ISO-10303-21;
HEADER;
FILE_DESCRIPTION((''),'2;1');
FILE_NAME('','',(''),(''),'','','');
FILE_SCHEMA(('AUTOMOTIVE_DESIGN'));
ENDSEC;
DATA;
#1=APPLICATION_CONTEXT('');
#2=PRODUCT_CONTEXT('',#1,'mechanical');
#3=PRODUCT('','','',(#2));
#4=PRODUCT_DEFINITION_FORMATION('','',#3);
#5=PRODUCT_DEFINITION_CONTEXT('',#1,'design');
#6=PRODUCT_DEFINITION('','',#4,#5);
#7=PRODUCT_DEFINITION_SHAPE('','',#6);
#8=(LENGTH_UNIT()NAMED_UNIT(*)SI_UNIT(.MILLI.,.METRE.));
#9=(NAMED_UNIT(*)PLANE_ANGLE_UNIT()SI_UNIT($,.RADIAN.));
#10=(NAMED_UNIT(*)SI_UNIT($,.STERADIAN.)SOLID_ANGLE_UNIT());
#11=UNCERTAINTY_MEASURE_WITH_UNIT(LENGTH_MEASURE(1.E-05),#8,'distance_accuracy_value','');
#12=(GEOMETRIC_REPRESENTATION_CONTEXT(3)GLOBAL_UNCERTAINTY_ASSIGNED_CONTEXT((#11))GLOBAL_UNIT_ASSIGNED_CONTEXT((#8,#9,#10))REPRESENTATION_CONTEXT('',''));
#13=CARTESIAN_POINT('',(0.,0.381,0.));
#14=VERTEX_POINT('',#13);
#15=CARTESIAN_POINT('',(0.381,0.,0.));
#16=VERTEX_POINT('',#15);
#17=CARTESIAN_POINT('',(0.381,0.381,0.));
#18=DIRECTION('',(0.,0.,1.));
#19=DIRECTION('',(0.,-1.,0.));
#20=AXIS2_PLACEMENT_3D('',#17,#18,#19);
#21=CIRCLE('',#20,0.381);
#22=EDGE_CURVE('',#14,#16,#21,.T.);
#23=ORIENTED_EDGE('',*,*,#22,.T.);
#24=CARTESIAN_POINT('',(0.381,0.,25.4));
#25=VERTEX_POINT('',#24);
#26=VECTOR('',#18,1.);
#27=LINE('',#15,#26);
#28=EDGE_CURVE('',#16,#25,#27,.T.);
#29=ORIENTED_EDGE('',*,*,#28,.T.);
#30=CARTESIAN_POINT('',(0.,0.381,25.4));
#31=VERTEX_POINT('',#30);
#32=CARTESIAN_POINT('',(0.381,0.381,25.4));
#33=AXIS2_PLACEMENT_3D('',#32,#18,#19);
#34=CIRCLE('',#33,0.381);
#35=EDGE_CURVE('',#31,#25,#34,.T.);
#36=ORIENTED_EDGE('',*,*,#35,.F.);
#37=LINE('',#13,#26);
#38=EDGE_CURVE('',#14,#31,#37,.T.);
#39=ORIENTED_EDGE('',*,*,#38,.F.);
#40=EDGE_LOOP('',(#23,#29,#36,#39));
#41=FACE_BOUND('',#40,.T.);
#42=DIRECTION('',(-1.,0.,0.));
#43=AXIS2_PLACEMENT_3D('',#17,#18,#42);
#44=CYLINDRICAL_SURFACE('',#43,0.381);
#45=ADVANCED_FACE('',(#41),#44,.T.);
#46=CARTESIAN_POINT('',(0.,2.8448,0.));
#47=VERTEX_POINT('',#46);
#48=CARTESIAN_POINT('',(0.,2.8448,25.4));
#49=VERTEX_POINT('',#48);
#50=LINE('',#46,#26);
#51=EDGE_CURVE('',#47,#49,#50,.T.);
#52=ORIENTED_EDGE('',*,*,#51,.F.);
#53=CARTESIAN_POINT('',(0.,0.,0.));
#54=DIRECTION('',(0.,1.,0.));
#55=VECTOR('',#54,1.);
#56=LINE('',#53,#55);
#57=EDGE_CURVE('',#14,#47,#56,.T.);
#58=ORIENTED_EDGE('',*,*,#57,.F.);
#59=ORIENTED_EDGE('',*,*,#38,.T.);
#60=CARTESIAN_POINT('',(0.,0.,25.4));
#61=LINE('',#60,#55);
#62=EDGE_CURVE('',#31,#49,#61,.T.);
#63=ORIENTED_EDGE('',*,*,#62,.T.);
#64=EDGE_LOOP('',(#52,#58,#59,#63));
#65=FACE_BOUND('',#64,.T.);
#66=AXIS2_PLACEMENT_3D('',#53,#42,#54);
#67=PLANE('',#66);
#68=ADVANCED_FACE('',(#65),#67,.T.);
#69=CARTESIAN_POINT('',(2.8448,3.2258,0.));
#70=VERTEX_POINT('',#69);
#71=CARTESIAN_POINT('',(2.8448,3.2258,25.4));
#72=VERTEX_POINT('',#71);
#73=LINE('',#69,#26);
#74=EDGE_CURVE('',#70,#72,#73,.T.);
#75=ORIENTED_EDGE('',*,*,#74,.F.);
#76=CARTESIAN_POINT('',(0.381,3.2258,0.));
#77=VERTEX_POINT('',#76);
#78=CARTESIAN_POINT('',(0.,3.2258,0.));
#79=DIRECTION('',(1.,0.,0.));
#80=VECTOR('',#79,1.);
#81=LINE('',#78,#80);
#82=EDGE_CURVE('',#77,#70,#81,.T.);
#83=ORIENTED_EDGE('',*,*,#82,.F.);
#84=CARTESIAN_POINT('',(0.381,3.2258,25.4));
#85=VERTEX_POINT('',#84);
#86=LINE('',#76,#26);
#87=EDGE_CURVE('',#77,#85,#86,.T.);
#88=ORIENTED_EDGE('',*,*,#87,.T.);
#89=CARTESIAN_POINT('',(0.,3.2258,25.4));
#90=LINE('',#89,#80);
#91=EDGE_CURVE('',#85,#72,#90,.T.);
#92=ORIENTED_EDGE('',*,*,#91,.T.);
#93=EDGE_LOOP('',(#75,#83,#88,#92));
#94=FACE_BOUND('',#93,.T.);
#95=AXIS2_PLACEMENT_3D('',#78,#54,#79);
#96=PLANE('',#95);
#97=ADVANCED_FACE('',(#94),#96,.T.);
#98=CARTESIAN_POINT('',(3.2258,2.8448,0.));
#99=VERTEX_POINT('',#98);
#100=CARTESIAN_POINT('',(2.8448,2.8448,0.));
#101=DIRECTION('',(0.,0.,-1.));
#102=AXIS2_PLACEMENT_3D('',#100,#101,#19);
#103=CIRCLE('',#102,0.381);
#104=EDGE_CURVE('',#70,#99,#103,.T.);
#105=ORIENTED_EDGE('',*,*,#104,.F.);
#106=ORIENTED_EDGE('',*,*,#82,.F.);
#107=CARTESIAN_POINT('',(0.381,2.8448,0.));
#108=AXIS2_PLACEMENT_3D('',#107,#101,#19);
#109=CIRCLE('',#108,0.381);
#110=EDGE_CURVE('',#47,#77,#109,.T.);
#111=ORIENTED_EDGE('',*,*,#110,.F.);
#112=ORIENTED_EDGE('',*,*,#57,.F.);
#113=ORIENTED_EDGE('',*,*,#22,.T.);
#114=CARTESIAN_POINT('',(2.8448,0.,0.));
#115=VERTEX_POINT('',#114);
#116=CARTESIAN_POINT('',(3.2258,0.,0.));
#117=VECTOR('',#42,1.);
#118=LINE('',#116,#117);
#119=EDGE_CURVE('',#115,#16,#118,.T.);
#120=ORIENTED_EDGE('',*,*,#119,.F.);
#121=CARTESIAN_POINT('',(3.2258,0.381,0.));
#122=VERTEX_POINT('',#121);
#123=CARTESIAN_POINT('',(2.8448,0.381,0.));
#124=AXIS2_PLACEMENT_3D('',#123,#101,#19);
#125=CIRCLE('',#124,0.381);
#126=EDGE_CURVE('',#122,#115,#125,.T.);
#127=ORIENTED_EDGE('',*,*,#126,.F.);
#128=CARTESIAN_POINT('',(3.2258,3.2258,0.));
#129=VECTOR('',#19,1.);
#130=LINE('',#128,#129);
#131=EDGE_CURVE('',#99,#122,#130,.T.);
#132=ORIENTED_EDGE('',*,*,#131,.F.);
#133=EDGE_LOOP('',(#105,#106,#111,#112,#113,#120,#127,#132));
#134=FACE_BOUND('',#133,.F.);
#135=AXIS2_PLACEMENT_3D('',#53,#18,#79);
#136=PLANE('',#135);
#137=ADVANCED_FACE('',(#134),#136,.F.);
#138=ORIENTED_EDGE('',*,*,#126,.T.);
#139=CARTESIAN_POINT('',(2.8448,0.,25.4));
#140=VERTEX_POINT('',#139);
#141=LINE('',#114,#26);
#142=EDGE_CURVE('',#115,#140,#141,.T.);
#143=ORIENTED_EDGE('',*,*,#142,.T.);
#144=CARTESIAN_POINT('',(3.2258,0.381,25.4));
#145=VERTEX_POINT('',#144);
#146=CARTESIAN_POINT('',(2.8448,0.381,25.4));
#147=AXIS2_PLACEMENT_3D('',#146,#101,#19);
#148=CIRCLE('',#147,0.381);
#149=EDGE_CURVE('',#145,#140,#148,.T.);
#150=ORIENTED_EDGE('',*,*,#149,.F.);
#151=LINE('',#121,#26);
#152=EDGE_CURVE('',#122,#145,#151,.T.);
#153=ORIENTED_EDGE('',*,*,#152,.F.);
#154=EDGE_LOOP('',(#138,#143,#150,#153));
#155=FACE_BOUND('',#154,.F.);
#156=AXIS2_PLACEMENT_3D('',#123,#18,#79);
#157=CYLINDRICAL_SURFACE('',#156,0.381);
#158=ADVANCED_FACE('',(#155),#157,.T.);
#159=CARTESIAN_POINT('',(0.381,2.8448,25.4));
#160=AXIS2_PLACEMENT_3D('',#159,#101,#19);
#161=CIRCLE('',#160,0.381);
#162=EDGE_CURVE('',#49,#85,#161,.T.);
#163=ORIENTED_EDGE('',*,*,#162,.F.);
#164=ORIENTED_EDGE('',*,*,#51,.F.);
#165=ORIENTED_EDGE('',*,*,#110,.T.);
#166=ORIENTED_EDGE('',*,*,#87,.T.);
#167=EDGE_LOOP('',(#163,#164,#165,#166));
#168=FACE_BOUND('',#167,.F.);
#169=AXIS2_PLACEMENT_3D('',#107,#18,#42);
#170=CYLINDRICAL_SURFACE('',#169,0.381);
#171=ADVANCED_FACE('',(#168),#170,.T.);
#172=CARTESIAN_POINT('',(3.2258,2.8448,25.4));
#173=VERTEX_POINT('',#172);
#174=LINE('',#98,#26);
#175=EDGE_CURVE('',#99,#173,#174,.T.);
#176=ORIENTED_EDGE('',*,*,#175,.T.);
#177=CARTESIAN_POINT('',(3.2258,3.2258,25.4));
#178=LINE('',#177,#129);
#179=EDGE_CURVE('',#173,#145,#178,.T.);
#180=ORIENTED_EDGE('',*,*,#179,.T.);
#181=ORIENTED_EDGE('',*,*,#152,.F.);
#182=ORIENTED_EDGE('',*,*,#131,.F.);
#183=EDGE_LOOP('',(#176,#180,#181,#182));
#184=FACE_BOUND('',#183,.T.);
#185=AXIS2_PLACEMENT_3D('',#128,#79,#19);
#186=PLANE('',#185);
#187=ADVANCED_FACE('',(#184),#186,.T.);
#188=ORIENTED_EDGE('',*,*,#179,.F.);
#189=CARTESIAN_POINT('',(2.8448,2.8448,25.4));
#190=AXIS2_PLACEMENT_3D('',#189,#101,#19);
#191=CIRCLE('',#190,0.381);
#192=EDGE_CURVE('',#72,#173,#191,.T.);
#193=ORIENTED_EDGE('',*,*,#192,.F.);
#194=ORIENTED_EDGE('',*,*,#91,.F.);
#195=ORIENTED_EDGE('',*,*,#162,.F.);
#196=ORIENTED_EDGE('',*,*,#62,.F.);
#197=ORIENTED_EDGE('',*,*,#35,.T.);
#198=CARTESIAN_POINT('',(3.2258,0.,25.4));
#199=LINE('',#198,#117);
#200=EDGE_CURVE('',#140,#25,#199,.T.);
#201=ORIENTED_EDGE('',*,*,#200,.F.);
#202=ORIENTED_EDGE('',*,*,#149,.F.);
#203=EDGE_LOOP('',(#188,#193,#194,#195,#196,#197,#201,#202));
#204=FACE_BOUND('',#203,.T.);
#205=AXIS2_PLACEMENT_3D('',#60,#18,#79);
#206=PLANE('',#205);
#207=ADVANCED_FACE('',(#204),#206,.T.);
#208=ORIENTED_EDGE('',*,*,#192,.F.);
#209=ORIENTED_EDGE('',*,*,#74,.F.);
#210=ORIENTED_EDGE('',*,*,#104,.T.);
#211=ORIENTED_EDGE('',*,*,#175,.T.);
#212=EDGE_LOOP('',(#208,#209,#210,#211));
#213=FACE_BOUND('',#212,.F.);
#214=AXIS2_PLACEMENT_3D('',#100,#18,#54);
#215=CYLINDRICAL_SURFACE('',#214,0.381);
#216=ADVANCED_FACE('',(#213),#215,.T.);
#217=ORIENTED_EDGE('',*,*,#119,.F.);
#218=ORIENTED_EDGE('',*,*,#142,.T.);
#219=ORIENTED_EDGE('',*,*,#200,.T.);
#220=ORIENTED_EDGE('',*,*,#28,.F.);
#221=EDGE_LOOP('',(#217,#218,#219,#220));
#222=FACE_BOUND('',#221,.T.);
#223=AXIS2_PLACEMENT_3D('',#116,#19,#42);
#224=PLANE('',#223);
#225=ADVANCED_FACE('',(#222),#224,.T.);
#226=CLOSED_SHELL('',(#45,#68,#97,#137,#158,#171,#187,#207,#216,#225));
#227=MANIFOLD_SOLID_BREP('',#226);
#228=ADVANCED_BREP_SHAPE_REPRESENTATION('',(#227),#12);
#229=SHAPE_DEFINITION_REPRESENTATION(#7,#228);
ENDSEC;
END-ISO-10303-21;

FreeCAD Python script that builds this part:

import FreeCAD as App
import Part
import Sketcher
Q = App.Units.Quantity


def edges_at(feature, points):
    """Names of the edges that pass closest to the given points."""
    edges = feature.Shape.Edges
    near = lambda p: min(range(len(edges)), key=lambda i: edges[i].distToShape(Part.Vertex(*p))[0])
    return sorted({f"Edge{near(p) + 1}" for p in points})

doc = App.newDocument("Part")
body = doc.addObject("PartDesign::Body", "Body")

sketch1 = body.newObject("Sketcher::SketchObject", "Sketch")
sketch1.AttachmentSupport = (doc.getObject("XY_Plane"), [""])
sketch1.MapMode = "FlatFace"
sketch1.addGeometry(Part.LineSegment(App.Vector(0, 3.2, 0), App.Vector(0, 0, 0)), False)
sketch1.addGeometry(Part.LineSegment(App.Vector(0, 0, 0), App.Vector(3.2, 0, 0)), False)
sketch1.addGeometry(Part.LineSegment(App.Vector(3.2, 0, 0), App.Vector(3.2, 3.2, 0)), False)
sketch1.addGeometry(Part.LineSegment(App.Vector(3.2, 3.2, 0), App.Vector(0, 3.2, 0)), False)
sketch1.addConstraint(Sketcher.Constraint("Coincident", 0, 2, 1, 1))
sketch1.addConstraint(Sketcher.Constraint("Coincident", 1, 2, 2, 1))
sketch1.addConstraint(Sketcher.Constraint("Coincident", 2, 2, 3, 1))
sketch1.addConstraint(Sketcher.Constraint("Coincident", 3, 2, 0, 1))
sketch1.addConstraint(Sketcher.Constraint("Vertical", 0))
sketch1.addConstraint(Sketcher.Constraint("Horizontal", 1))
sketch1.addConstraint(Sketcher.Constraint("Vertical", 2))
sketch1.addConstraint(Sketcher.Constraint("Horizontal", 3))
sketch1.addConstraint(Sketcher.Constraint("Coincident", 0, 2, -1, 1))
sketch1.addConstraint(Sketcher.Constraint("Equal", 3, 0))
sketch1.addConstraint(Sketcher.Constraint("DistanceX", 1, 1, 1, 2, Q("0.127 in")))
pad1 = body.newObject("PartDesign::Pad", "Pad")
pad1.Profile = sketch1
pad1.Length = Q("1 in")
doc.recompute()

fillet = body.newObject("PartDesign::Fillet", "Fillet")
fillet.Base = (pad1, edges_at(pad1, [
    (3.226, 3.226, 12.7),
    (3.226, 0, 12.7),
    (0, 3.226, 12.7),
    (0, 0, 12.7),
]))
fillet.Radius = Q("0.015 in")

doc.recompute()
